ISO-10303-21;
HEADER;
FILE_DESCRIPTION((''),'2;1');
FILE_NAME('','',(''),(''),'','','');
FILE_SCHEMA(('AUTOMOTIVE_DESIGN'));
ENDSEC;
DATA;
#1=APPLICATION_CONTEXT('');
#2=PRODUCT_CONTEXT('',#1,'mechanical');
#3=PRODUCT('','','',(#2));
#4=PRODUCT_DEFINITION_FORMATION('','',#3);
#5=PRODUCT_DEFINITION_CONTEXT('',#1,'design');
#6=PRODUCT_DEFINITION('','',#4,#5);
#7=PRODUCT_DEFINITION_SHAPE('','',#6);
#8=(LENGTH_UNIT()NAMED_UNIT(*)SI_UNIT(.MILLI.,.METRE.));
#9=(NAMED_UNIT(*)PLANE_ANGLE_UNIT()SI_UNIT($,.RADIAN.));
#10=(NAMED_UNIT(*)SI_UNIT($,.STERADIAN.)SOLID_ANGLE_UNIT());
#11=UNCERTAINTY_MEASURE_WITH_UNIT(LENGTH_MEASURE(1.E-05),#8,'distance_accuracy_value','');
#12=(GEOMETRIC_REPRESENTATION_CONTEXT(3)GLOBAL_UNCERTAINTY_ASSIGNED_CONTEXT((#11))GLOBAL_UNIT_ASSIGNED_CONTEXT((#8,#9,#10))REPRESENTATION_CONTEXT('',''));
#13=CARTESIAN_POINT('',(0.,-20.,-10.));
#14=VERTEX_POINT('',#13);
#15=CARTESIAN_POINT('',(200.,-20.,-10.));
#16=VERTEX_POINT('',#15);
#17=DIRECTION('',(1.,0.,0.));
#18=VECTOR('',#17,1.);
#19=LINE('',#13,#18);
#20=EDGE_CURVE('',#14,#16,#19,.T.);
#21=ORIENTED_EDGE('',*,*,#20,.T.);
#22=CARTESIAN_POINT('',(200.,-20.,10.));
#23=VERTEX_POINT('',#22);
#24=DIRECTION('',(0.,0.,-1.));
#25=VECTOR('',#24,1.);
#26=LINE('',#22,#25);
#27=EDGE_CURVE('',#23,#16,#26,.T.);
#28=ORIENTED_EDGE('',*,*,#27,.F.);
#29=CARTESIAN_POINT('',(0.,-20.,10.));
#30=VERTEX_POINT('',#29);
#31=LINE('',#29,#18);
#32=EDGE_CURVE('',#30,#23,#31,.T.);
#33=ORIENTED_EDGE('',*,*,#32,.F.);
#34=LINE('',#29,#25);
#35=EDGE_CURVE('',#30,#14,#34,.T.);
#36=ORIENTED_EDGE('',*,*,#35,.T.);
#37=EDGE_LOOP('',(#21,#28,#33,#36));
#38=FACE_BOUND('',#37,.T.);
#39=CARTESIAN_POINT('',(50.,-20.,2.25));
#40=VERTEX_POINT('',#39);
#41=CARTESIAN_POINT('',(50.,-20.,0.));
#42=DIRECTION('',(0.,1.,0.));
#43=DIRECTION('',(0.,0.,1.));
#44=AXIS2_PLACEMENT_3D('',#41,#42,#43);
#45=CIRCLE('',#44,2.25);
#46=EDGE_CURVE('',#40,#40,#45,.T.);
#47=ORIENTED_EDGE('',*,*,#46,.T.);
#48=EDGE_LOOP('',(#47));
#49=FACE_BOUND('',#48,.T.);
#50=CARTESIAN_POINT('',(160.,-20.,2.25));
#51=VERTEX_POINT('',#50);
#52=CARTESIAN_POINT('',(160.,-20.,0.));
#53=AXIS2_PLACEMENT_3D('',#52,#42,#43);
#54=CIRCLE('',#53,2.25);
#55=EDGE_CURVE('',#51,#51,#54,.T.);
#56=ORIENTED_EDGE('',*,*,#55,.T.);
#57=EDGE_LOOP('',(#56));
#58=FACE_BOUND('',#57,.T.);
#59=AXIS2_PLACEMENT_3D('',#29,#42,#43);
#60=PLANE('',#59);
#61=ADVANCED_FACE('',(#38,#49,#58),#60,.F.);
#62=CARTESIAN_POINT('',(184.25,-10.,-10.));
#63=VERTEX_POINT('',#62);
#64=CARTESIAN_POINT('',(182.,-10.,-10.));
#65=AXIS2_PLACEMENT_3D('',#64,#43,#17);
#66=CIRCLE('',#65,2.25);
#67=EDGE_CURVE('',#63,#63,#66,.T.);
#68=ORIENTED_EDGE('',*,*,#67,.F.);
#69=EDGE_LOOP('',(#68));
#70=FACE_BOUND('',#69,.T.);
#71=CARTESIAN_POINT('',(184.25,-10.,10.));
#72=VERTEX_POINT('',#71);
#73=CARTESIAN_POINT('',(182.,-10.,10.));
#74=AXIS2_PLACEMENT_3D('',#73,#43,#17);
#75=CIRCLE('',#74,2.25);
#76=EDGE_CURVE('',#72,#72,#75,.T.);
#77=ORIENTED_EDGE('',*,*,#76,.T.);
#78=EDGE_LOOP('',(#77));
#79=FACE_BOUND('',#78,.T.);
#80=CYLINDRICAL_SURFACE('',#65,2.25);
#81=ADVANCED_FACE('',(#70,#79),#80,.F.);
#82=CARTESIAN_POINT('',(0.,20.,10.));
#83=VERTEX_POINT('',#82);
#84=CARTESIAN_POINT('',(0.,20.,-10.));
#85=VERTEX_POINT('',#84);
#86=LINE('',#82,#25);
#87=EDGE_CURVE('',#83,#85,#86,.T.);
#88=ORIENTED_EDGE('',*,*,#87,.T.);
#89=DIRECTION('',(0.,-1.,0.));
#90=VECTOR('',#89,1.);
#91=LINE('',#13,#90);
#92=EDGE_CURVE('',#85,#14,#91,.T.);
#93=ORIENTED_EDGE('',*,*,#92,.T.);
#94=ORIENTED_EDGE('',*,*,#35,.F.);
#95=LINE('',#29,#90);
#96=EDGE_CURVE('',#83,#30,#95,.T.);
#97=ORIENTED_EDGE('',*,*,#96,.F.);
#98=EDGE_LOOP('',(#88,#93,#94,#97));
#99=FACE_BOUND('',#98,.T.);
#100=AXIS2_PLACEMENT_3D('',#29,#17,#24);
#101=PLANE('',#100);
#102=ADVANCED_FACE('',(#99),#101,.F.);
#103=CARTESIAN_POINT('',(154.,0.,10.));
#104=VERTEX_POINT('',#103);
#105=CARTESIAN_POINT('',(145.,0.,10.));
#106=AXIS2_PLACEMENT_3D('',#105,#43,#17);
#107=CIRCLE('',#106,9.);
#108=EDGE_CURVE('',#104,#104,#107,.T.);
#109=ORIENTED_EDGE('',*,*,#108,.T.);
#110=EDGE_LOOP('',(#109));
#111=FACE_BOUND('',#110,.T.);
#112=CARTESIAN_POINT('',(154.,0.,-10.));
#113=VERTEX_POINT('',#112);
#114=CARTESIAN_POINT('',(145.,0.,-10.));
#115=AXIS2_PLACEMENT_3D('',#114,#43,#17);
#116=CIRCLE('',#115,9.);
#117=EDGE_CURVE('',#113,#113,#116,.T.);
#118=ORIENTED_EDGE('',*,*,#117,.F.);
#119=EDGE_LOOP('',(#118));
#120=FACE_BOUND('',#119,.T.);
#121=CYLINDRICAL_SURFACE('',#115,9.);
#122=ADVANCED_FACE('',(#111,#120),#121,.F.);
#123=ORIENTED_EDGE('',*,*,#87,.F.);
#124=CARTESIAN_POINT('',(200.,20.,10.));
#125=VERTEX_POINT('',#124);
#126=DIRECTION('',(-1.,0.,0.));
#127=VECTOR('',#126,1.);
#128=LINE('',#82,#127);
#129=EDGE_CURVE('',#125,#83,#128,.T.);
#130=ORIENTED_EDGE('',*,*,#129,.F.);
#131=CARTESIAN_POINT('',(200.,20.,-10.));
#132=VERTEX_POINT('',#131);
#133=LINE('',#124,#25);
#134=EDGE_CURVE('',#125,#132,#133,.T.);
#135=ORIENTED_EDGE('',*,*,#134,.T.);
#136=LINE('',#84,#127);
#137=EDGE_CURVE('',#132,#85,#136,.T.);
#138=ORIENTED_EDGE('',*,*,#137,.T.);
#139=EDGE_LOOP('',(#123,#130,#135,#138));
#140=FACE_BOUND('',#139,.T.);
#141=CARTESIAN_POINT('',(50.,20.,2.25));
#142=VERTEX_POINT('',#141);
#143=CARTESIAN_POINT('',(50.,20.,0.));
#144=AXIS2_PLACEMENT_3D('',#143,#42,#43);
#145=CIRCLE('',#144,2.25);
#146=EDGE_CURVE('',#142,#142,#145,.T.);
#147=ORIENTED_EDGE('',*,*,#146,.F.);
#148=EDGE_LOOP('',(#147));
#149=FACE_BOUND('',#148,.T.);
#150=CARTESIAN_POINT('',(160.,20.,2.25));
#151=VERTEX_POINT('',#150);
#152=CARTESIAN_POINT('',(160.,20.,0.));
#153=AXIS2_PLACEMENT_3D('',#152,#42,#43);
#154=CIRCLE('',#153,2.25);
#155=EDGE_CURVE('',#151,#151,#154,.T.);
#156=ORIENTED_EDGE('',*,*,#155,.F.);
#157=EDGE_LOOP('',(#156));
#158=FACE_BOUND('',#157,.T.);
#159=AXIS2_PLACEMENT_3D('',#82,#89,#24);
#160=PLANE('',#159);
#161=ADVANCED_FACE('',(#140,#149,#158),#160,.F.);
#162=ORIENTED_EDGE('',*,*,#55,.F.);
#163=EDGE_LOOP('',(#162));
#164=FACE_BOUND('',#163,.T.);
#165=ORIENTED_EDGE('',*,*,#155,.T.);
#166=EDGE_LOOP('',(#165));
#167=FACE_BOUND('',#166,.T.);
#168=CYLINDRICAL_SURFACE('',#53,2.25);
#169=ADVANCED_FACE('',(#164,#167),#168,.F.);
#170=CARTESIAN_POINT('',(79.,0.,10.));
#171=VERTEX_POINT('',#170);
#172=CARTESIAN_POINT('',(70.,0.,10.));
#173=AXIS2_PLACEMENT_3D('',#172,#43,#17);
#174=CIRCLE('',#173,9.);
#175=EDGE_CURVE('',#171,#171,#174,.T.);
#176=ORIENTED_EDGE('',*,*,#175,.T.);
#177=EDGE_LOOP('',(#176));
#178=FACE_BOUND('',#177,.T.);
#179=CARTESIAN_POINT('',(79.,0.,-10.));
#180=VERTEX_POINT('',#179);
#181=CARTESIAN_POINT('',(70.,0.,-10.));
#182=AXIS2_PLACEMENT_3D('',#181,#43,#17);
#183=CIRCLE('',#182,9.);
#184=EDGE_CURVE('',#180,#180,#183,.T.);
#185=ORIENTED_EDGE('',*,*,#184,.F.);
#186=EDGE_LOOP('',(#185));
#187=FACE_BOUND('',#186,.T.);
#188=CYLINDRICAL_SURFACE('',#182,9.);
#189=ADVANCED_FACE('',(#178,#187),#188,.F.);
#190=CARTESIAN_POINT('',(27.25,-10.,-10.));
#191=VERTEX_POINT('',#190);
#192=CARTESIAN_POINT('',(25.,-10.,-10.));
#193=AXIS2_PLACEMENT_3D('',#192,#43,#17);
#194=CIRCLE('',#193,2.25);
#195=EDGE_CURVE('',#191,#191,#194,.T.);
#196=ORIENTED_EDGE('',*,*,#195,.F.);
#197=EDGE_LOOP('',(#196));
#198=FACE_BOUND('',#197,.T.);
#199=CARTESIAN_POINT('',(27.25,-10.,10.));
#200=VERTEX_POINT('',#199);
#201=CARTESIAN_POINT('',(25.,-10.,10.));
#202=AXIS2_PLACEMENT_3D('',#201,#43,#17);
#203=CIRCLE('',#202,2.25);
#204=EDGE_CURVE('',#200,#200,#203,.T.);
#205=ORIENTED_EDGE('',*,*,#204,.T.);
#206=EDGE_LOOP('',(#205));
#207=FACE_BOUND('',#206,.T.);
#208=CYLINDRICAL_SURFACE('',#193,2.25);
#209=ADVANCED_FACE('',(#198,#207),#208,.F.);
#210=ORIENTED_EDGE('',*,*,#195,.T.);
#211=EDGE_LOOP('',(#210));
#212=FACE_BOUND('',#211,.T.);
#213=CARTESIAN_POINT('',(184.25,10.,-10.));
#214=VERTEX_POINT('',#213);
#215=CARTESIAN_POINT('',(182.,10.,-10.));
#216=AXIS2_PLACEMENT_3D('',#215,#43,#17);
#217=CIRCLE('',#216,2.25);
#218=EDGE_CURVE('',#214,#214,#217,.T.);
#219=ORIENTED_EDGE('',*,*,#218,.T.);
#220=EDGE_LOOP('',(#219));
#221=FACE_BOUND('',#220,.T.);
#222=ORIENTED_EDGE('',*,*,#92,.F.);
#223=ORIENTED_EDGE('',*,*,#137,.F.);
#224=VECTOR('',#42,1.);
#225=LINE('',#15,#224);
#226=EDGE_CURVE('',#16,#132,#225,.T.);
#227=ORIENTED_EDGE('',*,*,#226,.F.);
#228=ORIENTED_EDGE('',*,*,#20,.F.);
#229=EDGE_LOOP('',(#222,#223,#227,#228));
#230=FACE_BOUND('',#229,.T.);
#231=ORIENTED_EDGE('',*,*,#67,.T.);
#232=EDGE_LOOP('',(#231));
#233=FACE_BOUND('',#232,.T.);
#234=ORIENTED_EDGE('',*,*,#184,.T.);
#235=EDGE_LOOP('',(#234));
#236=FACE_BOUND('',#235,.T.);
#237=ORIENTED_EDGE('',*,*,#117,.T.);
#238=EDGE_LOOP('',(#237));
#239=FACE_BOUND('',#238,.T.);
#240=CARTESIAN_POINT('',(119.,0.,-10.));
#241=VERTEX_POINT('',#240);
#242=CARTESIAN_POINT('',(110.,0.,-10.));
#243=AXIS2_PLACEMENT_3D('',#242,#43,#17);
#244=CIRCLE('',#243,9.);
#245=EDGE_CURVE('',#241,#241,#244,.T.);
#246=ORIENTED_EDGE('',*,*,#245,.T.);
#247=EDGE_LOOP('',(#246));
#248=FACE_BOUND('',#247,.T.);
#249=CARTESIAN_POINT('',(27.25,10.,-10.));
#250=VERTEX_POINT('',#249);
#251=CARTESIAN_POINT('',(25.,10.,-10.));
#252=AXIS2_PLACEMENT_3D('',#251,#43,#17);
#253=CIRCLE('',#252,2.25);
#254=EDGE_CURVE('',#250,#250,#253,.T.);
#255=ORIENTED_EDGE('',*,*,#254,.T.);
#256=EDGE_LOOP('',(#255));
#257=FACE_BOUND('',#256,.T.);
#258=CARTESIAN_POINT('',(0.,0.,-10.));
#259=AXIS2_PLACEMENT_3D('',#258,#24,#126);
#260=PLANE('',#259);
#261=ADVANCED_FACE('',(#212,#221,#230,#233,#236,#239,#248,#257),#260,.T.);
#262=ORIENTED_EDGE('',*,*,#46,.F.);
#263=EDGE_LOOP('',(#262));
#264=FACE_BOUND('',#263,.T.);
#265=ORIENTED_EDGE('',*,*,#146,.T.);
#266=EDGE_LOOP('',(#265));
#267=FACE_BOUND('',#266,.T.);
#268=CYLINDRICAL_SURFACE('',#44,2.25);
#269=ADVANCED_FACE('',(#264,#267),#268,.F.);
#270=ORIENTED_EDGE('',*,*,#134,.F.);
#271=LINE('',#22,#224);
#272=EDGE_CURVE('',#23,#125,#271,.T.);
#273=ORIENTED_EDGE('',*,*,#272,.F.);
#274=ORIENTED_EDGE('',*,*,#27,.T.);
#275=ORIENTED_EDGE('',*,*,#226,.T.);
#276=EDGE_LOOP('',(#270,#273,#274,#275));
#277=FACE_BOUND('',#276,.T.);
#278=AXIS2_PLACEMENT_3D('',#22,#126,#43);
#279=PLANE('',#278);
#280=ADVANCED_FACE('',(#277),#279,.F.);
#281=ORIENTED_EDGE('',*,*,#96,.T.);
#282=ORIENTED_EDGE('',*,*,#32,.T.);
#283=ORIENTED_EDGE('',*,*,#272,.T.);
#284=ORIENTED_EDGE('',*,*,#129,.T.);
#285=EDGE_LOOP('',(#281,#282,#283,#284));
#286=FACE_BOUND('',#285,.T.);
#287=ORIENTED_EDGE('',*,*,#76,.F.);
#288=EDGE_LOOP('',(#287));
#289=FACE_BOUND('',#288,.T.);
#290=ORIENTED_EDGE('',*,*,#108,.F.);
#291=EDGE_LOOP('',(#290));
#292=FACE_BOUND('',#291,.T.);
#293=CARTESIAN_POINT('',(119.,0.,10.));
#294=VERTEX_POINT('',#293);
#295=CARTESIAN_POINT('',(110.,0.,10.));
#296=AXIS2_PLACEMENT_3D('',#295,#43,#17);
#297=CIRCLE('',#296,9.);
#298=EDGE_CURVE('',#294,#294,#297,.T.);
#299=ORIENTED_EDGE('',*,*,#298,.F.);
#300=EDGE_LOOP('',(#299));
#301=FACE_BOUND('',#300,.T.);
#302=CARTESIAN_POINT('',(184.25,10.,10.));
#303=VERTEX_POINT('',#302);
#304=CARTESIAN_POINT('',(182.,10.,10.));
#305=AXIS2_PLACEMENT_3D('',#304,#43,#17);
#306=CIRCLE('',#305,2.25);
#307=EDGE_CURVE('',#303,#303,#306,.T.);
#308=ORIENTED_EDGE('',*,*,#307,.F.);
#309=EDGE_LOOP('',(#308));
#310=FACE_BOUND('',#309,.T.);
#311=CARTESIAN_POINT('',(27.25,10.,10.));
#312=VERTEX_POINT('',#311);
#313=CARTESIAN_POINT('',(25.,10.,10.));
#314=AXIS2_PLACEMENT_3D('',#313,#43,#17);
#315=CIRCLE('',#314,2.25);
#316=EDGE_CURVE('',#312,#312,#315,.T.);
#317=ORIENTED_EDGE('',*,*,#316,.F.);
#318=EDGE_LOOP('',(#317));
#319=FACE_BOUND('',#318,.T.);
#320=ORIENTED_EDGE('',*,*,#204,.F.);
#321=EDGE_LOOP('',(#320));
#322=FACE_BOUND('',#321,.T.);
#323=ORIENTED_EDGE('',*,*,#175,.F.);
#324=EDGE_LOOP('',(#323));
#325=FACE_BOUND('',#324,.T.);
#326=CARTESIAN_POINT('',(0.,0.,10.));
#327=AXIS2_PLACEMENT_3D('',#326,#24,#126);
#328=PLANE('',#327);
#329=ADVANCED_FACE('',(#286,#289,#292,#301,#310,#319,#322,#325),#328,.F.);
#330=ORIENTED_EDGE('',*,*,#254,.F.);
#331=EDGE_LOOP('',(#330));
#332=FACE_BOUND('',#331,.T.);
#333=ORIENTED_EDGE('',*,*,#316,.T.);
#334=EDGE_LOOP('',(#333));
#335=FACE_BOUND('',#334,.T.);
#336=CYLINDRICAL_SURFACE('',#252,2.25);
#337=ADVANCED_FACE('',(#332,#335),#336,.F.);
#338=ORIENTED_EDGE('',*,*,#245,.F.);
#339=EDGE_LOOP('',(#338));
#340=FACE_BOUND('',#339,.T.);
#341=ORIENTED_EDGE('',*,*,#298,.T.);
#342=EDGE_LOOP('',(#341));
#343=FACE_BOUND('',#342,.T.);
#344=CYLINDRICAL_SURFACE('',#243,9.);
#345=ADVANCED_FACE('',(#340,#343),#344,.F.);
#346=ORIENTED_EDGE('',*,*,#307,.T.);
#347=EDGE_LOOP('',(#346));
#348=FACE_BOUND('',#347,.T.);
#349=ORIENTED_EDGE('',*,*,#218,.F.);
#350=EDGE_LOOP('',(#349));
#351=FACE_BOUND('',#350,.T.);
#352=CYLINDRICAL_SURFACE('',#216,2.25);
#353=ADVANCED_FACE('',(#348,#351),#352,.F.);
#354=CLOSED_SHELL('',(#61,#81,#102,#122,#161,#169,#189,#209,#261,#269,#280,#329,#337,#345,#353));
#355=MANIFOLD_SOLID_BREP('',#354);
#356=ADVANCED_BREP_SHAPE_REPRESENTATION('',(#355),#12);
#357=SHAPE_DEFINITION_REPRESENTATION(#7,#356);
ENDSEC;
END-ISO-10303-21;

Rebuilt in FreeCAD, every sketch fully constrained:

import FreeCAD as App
import Part
import Sketcher
from FreeCAD import Vector

doc = App.newDocument("Part")
body = doc.addObject("PartDesign::Body", "Body")

# Sketch on XY plane
sketch1 = doc.addObject("Sketcher::SketchObject", "Sketch")
body.addObject(sketch1)
sketch1.AttachmentSupport = (doc.XY_Plane, [""])
sketch1.MapMode = "FlatFace"
sketch1.AttachmentOffset = App.Placement(Vector(0, 0, -10), App.Rotation())
sketch1.addGeometry(Part.LineSegment(Vector(0, 20, 0), Vector(0, -20, 0)), False)
sketch1.addGeometry(Part.LineSegment(Vector(0, -20, 0), Vector(200, -20, 0)), False)
sketch1.addGeometry(Part.LineSegment(Vector(200, -20, 0), Vector(200, 20, 0)), False)
sketch1.addGeometry(Part.LineSegment(Vector(200, 20, 0), Vector(0, 20, 0)), False)
sketch1.addConstraint(Sketcher.Constraint("Coincident", 0, 2, 1, 1))
sketch1.addConstraint(Sketcher.Constraint("Coincident", 1, 2, 2, 1))
sketch1.addConstraint(Sketcher.Constraint("Coincident", 2, 2, 3, 1))
sketch1.addConstraint(Sketcher.Constraint("Coincident", 3, 2, 0, 1))
sketch1.addConstraint(Sketcher.Constraint("Vertical", 0))
sketch1.addConstraint(Sketcher.Constraint("Horizontal", 1))
sketch1.addConstraint(Sketcher.Constraint("Vertical", 2))
sketch1.addConstraint(Sketcher.Constraint("Horizontal", 3))
sketch1.addConstraint(Sketcher.Constraint("Symmetric", 0, 2, 3, 2, -1, 1))
sketch1.addConstraint(Sketcher.Constraint("DistanceX", 1, 1, 1, 2, 200.0))
sketch1.addConstraint(Sketcher.Constraint("DistanceY", 0, 2, 0, 1, 40.0))
pad1 = doc.addObject("PartDesign::Pad", "Pad")
body.addObject(pad1)
pad1.Profile = sketch1
pad1.Length = 20

# Sketch on XY plane
sketch2 = doc.addObject("Sketcher::SketchObject", "Sketch001")
body.addObject(sketch2)
sketch2.AttachmentSupport = (doc.XY_Plane, [""])
sketch2.MapMode = "FlatFace"
sketch2.addGeometry(Part.Circle(Vector(70, 0, 0), Vector(0, 0, 1), 9), False)
sketch2.addGeometry(Part.Circle(Vector(110, 0, 0), Vector(0, 0, 1), 9), False)
sketch2.addGeometry(Part.Circle(Vector(145, 0, 0), Vector(0, 0, 1), 9), False)
sketch2.addGeometry(Part.Circle(Vector(25, -10, 0), Vector(0, 0, 1), 2.25), False)
sketch2.addGeometry(Part.Circle(Vector(25, 10, 0), Vector(0, 0, 1), 2.25), False)
sketch2.addGeometry(Part.Circle(Vector(182, -10, 0), Vector(0, 0, 1), 2.25), False)
sketch2.addGeometry(Part.Circle(Vector(182, 10, 0), Vector(0, 0, 1), 2.25), False)
sketch2.addConstraint(Sketcher.Constraint("Equal", 0, 1))
sketch2.addConstraint(Sketcher.Constraint("Equal", 1, 2))
sketch2.addConstraint(Sketcher.Constraint("Equal", 3, 4))
sketch2.addConstraint(Sketcher.Constraint("Equal", 4, 5))
sketch2.addConstraint(Sketcher.Constraint("Equal", 5, 6))
sketch2.addConstraint(Sketcher.Constraint("Symmetric", 3, 3, 4, 3, -1))
sketch2.addConstraint(Sketcher.Constraint("Symmetric", 5, 3, 6, 3, -1))
sketch2.addConstraint(Sketcher.Constraint("PointOnObject", 0, 3, -1))
sketch2.addConstraint(Sketcher.Constraint("PointOnObject", 1, 3, -1))
sketch2.addConstraint(Sketcher.Constraint("PointOnObject", 2, 3, -1))
sketch2.addConstraint(Sketcher.Constraint("Horizontal", 3, 3, 5, 3))
sketch2.addConstraint(Sketcher.Constraint("Diameter", 0, 18.0))
sketch2.addConstraint(Sketcher.Constraint("Diameter", 3, 4.5))
sketch2.addConstraint(Sketcher.Constraint("DistanceX", -1, 1, 0, 3, 70.0))
sketch2.addConstraint(Sketcher.Constraint("DistanceX", -1, 1, 1, 3, 110.0))
sketch2.addConstraint(Sketcher.Constraint("DistanceX", -1, 1, 2, 3, 145.0))
sketch2.addConstraint(Sketcher.Constraint("DistanceX", -1, 1, 3, 3, 25.0))
sketch2.addConstraint(Sketcher.Constraint("DistanceY", 3, 3, -1, 1, 10.0))
sketch2.addConstraint(Sketcher.Constraint("DistanceX", -1, 1, 5, 3, 182.0))
pocket1 = doc.addObject("PartDesign::Pocket", "Pocket")
body.addObject(pocket1)
pocket1.Profile = sketch2
pocket1.Type = "ThroughAll"
pocket1.Midplane = True

# Sketch on XZ plane
sketch3 = doc.addObject("Sketcher::SketchObject", "Sketch002")
body.addObject(sketch3)
sketch3.AttachmentSupport = (doc.XZ_Plane, [""])
sketch3.MapMode = "FlatFace"
sketch3.addGeometry(Part.Circle(Vector(50, 0, 0), Vector(0, 0, 1), 2.25), False)
sketch3.addGeometry(Part.Circle(Vector(160, 0, 0), Vector(0, 0, 1), 2.25), False)
sketch3.addConstraint(Sketcher.Constraint("Equal", 0, 1))
sketch3.addConstraint(Sketcher.Constraint("PointOnObject", 0, 3, -1))
sketch3.addConstraint(Sketcher.Constraint("PointOnObject", 1, 3, -1))
sketch3.addConstraint(Sketcher.Constraint("Diameter", 0, 4.5))
sketch3.addConstraint(Sketcher.Constraint("DistanceX", -1, 1, 0, 3, 50.0))
sketch3.addConstraint(Sketcher.Constraint("DistanceX", -1, 1, 1, 3, 160.0))
pocket2 = doc.addObject("PartDesign::Pocket", "Pocket001")
body.addObject(pocket2)
pocket2.Profile = sketch3
pocket2.Type = "ThroughAll"
pocket2.Midplane = True

doc.recompute()
